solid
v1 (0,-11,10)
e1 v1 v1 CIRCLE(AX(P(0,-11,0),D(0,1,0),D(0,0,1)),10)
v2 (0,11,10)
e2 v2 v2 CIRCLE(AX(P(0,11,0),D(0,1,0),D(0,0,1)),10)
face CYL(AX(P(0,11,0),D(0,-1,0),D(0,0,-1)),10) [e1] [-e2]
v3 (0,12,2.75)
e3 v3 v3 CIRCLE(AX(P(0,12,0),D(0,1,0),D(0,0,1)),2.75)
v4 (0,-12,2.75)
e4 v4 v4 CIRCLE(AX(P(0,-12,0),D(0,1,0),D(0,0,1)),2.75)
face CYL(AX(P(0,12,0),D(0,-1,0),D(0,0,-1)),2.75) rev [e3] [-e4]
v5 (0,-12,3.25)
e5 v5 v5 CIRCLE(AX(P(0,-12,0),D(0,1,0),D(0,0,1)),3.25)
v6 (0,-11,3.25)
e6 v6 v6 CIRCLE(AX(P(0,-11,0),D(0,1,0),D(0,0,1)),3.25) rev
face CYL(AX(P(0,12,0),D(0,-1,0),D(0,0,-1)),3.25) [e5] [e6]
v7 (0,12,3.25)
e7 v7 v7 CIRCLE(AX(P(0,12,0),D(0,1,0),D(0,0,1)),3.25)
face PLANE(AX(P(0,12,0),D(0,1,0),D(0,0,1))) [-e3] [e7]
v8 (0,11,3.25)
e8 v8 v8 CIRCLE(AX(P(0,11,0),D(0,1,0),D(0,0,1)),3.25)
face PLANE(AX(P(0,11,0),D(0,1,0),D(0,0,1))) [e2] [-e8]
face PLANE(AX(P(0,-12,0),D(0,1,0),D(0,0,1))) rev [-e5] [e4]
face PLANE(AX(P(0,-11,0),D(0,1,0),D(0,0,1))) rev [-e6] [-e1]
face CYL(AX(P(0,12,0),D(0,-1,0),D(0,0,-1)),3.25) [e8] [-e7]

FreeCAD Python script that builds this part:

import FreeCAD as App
import Part
import Sketcher
from FreeCAD import Vector

doc = App.newDocument("Part")
body = doc.addObject("PartDesign::Body", "Body")

# Sketch on XZ plane
sketch1 = body.newObject("Sketcher::SketchObject", "Sketch")
sketch1.AttachmentSupport = (doc.getObject("XZ_Plane"), [""])
sketch1.MapMode = "FlatFace"
sketch1.addGeometry([
    Part.Circle(Vector(0, 0, 0), Vector(0, 0, 1), 10),
    Part.Circle(Vector(0, 0, 0), Vector(0, 0, 1), 3.2),
], False)
sketch1.addConstraint([
    Sketcher.Constraint("Coincident", 0, 3, -1, 1),
    Sketcher.Constraint("Coincident", 1, 3, -1, 1),
    Sketcher.Constraint("Diameter", 0, 20.0),
    Sketcher.Constraint("Diameter", 1, 6.5),
])
pad1 = body.newObject("PartDesign::Pad", "Pad")
pad1.Profile = sketch1
pad1.Length = 22
pad1.Midplane = True

# Sketch on XZ plane
sketch2 = body.newObject("Sketcher::SketchObject", "Sketch001")
sketch2.AttachmentSupport = (doc.getObject("XZ_Plane"), [""])
sketch2.MapMode = "FlatFace"
sketch2.addGeometry([
    Part.Circle(Vector(0, 0, 0), Vector(0, 0, 1), 3.2),
    Part.Circle(Vector(0, 0, 0), Vector(0, 0, 1), 2.8),
], False)
sketch2.addConstraint([
    Sketcher.Constraint("Coincident", 0, 3, -1, 1),
    Sketcher.Constraint("Coincident", 1, 3, -1, 1),
    Sketcher.Constraint("Diameter", 0, 6.5),
    Sketcher.Constraint("Diameter", 1, 5.5),
])
pad2 = body.newObject("PartDesign::Pad", "Pad001")
pad2.Profile = sketch2
pad2.Length = 24
pad2.Midplane = True

doc.recompute()
